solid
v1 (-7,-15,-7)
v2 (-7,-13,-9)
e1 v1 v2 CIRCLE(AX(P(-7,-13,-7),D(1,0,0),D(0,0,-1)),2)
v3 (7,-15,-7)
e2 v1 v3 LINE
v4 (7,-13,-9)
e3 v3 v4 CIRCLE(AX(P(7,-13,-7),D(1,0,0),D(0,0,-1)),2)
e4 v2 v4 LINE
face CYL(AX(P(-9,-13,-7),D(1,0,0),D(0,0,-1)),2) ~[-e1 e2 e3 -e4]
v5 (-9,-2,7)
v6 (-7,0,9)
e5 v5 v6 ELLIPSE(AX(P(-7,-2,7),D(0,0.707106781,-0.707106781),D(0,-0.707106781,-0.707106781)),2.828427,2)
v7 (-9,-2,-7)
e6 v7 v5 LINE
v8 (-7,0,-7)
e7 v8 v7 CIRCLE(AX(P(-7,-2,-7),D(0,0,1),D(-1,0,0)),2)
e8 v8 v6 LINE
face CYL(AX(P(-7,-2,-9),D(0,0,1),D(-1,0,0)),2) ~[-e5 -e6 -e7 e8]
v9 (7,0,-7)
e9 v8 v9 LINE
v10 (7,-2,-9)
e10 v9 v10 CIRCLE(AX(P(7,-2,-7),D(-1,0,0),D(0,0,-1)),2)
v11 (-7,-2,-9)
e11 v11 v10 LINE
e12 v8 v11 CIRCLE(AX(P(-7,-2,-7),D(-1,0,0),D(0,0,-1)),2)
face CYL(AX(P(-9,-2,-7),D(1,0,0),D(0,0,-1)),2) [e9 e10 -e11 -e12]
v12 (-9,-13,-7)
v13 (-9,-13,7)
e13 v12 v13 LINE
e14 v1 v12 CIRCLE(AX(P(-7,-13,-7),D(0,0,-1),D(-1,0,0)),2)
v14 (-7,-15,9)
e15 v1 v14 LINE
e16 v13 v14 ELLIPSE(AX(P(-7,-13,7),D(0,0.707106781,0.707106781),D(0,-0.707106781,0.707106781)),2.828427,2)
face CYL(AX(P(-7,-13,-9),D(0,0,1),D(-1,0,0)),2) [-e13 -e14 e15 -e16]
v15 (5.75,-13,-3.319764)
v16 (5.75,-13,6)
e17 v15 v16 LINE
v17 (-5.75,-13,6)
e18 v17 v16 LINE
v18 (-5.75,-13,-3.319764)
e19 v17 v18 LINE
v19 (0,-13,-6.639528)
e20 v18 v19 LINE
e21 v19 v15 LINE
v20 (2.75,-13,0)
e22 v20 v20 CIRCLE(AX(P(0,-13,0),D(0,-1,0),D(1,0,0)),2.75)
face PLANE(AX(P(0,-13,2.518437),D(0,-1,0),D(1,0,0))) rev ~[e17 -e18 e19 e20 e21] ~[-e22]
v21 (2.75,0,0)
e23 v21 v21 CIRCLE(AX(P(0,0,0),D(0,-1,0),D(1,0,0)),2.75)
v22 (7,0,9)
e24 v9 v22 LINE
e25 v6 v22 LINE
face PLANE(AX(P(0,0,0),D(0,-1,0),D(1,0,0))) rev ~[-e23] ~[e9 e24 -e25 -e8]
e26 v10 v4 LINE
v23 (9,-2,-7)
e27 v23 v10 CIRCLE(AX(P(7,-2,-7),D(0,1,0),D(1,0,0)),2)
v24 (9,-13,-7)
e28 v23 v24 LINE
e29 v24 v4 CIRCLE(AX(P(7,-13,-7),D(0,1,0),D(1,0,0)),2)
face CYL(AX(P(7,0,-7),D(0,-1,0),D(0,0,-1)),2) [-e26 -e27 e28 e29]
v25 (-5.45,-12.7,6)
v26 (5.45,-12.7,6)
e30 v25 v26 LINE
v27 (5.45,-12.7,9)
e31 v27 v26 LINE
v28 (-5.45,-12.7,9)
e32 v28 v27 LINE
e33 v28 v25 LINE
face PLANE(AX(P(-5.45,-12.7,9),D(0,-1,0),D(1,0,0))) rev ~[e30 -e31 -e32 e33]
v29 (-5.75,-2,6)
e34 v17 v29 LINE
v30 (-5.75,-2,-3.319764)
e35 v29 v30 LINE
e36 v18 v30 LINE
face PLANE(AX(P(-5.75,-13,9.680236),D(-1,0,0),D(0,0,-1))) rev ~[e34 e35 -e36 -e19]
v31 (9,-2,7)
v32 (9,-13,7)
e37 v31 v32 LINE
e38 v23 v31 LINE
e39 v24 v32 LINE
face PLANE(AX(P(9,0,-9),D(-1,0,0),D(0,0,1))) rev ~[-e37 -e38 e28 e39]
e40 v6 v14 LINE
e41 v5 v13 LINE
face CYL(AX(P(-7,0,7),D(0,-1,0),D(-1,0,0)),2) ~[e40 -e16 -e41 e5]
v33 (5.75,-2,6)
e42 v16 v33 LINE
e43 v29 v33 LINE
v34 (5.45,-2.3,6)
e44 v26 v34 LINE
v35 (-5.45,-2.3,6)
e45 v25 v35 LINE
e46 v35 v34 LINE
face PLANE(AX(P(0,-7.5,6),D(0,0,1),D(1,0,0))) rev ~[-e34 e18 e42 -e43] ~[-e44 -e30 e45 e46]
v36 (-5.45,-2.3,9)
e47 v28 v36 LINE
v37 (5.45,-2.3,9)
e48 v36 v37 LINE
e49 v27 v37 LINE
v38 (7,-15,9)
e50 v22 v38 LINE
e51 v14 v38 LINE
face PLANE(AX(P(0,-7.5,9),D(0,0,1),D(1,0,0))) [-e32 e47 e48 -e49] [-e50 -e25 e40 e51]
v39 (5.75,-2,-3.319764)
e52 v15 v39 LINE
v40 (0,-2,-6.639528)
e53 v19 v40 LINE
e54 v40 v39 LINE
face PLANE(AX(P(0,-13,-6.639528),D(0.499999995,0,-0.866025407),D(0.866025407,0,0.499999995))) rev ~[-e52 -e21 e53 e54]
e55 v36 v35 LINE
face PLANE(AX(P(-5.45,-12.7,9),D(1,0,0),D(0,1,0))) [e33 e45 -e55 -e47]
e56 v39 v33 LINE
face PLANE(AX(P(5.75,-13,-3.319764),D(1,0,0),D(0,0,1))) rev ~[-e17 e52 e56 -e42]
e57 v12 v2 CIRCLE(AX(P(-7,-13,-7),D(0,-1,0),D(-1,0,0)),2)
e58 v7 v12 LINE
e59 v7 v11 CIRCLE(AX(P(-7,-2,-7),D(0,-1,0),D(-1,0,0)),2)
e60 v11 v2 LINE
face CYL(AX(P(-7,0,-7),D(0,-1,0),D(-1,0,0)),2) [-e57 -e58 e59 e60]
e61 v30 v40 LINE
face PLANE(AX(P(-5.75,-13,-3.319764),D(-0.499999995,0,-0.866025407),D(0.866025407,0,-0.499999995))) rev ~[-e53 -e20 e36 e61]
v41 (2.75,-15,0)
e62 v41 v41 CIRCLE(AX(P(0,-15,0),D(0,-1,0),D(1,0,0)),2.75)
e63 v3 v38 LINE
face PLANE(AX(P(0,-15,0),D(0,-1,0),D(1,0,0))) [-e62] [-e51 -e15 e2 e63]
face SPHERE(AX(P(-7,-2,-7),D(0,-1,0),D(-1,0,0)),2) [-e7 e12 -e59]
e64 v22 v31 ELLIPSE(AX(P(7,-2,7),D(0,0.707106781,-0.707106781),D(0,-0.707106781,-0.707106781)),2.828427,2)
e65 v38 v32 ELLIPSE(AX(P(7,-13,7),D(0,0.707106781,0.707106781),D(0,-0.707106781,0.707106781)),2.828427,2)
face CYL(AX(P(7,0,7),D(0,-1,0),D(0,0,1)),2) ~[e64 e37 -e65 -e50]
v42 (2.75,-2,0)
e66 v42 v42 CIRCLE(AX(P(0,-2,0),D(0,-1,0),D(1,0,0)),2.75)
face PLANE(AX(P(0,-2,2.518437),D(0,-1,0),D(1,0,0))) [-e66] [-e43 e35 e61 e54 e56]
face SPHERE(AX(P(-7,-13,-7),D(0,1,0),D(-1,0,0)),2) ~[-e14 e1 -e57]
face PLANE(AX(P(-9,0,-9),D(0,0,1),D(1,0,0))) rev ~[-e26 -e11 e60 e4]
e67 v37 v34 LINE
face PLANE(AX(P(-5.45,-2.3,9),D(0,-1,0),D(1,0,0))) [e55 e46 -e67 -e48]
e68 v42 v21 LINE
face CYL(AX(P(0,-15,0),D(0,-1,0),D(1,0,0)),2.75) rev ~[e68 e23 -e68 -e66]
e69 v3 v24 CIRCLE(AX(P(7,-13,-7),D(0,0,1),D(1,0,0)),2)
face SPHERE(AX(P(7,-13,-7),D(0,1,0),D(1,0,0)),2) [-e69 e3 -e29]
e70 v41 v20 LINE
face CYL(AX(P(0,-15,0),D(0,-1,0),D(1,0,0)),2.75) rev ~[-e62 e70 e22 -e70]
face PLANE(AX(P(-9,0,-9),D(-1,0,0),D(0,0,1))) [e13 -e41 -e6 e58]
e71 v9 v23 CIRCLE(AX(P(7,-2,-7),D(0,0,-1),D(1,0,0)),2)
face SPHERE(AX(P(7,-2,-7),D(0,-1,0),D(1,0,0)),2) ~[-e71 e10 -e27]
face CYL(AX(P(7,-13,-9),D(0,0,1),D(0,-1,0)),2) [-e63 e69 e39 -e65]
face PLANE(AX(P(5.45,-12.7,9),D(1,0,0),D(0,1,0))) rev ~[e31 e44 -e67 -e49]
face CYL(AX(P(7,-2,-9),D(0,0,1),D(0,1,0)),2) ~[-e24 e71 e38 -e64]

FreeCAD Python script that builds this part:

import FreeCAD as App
import Part
import Sketcher
Q = App.Units.Quantity


def edges_at(feature, points):
    """Names of the edges that pass closest to the given points."""
    edges = feature.Shape.Edges
    near = lambda p: min(range(len(edges)), key=lambda i: edges[i].distToShape(Part.Vertex(*p))[0])
    return sorted({f"Edge{near(p) + 1}" for p in points})

doc = App.newDocument("Part")
body = doc.addObject("PartDesign::Body", "Body")

sketch1 = body.newObject("Sketcher::SketchObject", "Sketch")
sketch1.AttachmentSupport = (doc.getObject("XZ_Plane"), [""])
sketch1.MapMode = "FlatFace"
sketch1.addGeometry([
    Part.LineSegment(App.Vector(-9, 9, 0), App.Vector(-9, -9, 0)),
    Part.LineSegment(App.Vector(-9, -9, 0), App.Vector(9, -9, 0)),
    Part.LineSegment(App.Vector(9, -9, 0), App.Vector(9, 9, 0)),
    Part.LineSegment(App.Vector(9, 9, 0), App.Vector(-9, 9, 0)),
], False)
sketch1.addConstraint([
    Sketcher.Constraint("Coincident", 0, 2, 1, 1),
    Sketcher.Constraint("Coincident", 1, 2, 2, 1),
    Sketcher.Constraint("Coincident", 2, 2, 3, 1),
    Sketcher.Constraint("Coincident", 3, 2, 0, 1),
    Sketcher.Constraint("Vertical", 0),
    Sketcher.Constraint("Horizontal", 1),
    Sketcher.Constraint("Vertical", 2),
    Sketcher.Constraint("Horizontal", 3),
    Sketcher.Constraint("Symmetric", 0, 2, 2, 2, -1, 1),
    Sketcher.Constraint("Equal", 3, 0),
    Sketcher.Constraint("DistanceX", 1, 1, 1, 2, Q("18 mm")),
])
pad1 = body.newObject("PartDesign::Pad", "Pad")
pad1.Profile = sketch1
pad1.Length = 15

sketch2 = body.newObject("Sketcher::SketchObject", "Sketch001")
sketch2.AttachmentSupport = (doc.getObject("XZ_Plane"), [""])
sketch2.MapMode = "FlatFace"
sketch2.AttachmentOffset = App.Placement(App.Vector(0, 0, 13), App.Rotation())
sketch2.addGeometry([
    Part.LineSegment(App.Vector(6, -3, 0), App.Vector(6, 10, 0)),
    Part.LineSegment(App.Vector(6, 10, 0), App.Vector(-6, 10, 0)),
    Part.LineSegment(App.Vector(-6, 10, 0), App.Vector(-6, -3, 0)),
    Part.LineSegment(App.Vector(-6, -3, 0), App.Vector(0, -7, 0)),
    Part.LineSegment(App.Vector(0, -7, 0), App.Vector(6, -3, 0)),
], False)
sketch2.addConstraint([
    Sketcher.Constraint("Coincident", 0, 2, 1, 1),
    Sketcher.Constraint("Coincident", 1, 2, 2, 1),
    Sketcher.Constraint("Coincident", 2, 2, 3, 1),
    Sketcher.Constraint("Coincident", 3, 2, 4, 1),
    Sketcher.Constraint("Coincident", 4, 2, 0, 1),
    Sketcher.Constraint("Vertical", 0),
    Sketcher.Constraint("Horizontal", 1),
    Sketcher.Constraint("Vertical", 2),
    Sketcher.Constraint("Symmetric", 2, 2, 4, 2, -2),
    Sketcher.Constraint("PointOnObject", 3, 2, -2),
    Sketcher.Constraint("DistanceY", 0, 1, 0, 2, Q("13 mm")),
    Sketcher.Constraint("Angle", 3, Q("-30 deg")),
    Sketcher.Constraint("DistanceX", 1, 2, 1, 1, Q("11.5 mm")),
    Sketcher.Constraint("DistanceY", 3, 2, -1, 1, Q("6.639528 mm")),
])
pocket1 = body.newObject("PartDesign::Pocket", "Pocket")
pocket1.Profile = sketch2
pocket1.Length = 11

sketch3 = body.newObject("Sketcher::SketchObject", "Sketch002")
sketch3.AttachmentSupport = (doc.getObject("XZ_Plane"), [""])
sketch3.MapMode = "FlatFace"
sketch3.AttachmentOffset = App.Placement(App.Vector(0, 0, 15), App.Rotation())
sketch3.addGeometry(Part.Circle(App.Vector(0, 0, 0), App.Vector(0, 0, 1), 2.8), False)
sketch3.addConstraint([
    Sketcher.Constraint("Coincident", 0, 3, -1, 1),
    Sketcher.Constraint("Diameter", 0, Q("5.5 mm")),
])
pocket2 = body.newObject("PartDesign::Pocket", "Pocket001")
pocket2.Profile = sketch3
pocket2.Type = "ThroughAll"
doc.recompute()

fillet = body.newObject("PartDesign::Fillet", "Fillet")
fillet.Base = (pocket2, edges_at(pocket2, [
    (-9, -7.5, 9),
    (-9, -7.5, -9),
    (-9, 0, 0),
    (-9, -15, 0),
    (9, -7.5, -9),
    (9, -7.5, 9),
    (9, 0, 0),
    (9, -15, 0),
    (0, 0, -9),
    (0, -15, -9),
]))
fillet.Radius = 2

sketch4 = body.newObject("Sketcher::SketchObject", "Sketch003")
sketch4.AttachmentSupport = (doc.getObject("XY_Plane"), [""])
sketch4.MapMode = "FlatFace"
sketch4.AttachmentOffset = App.Placement(App.Vector(0, 0, 9), App.Rotation())
sketch4.addGeometry([
    Part.LineSegment(App.Vector(-6, -2, 0), App.Vector(-6, -13, 0)),
    Part.LineSegment(App.Vector(-6, -13, 0), App.Vector(6, -13, 0)),
    Part.LineSegment(App.Vector(6, -13, 0), App.Vector(6, -2, 0)),
    Part.LineSegment(App.Vector(6, -2, 0), App.Vector(-6, -2, 0)),
    Part.LineSegment(App.Vector(5, -13, 0), App.Vector(-5, -13, 0)),
    Part.LineSegment(App.Vector(-5, -13, 0), App.Vector(-5, -2, 0)),
    Part.LineSegment(App.Vector(-5, -2, 0), App.Vector(5, -2, 0)),
    Part.LineSegment(App.Vector(5, -2, 0), App.Vector(5, -13, 0)),
], False)
sketch4.addConstraint([
    Sketcher.Constraint("Coincident", 0, 2, 1, 1),
    Sketcher.Constraint("Coincident", 1, 2, 2, 1),
    Sketcher.Constraint("Coincident", 2, 2, 3, 1),
    Sketcher.Constraint("Coincident", 3, 2, 0, 1),
    Sketcher.Constraint("Coincident", 4, 2, 5, 1),
    Sketcher.Constraint("Coincident", 5, 2, 6, 1),
    Sketcher.Constraint("Coincident", 6, 2, 7, 1),
    Sketcher.Constraint("Coincident", 7, 2, 4, 1),
    Sketcher.Constraint("Vertical", 0),
    Sketcher.Constraint("Horizontal", 1),
    Sketcher.Constraint("Vertical", 2),
    Sketcher.Constraint("Horizontal", 3),
    Sketcher.Constraint("Horizontal", 4),
    Sketcher.Constraint("Vertical", 5),
    Sketcher.Constraint("Horizontal", 6),
    Sketcher.Constraint("Vertical", 7),
    Sketcher.Constraint("DistanceY", 0, 2, 0, 1, Q("11 mm")),
    Sketcher.Constraint("DistanceX", 1, 1, 1, 2, Q("11.5 mm")),
    Sketcher.Constraint("DistanceX", 4, 2, 4, 1, Q("10.9 mm")),
    Sketcher.Constraint("DistanceY", 5, 1, 5, 2, Q("10.4 mm")),
    Sketcher.Constraint("DistanceY", 0, 2, -1, 1, Q("13 mm")),
    Sketcher.Constraint("DistanceY", 4, 2, -1, 1, Q("12.7 mm")),
    Sketcher.Constraint("DistanceX", 0, 2, 4, 2, Q("0.3 mm")),
    Sketcher.Constraint("DistanceX", 0, 2, -1, 1, Q("5.75 mm")),
])
pad2 = body.newObject("PartDesign::Pad", "Pad001")
pad2.Profile = sketch4
pad2.Length = 3
pad2.Reversed = True

doc.recompute()
